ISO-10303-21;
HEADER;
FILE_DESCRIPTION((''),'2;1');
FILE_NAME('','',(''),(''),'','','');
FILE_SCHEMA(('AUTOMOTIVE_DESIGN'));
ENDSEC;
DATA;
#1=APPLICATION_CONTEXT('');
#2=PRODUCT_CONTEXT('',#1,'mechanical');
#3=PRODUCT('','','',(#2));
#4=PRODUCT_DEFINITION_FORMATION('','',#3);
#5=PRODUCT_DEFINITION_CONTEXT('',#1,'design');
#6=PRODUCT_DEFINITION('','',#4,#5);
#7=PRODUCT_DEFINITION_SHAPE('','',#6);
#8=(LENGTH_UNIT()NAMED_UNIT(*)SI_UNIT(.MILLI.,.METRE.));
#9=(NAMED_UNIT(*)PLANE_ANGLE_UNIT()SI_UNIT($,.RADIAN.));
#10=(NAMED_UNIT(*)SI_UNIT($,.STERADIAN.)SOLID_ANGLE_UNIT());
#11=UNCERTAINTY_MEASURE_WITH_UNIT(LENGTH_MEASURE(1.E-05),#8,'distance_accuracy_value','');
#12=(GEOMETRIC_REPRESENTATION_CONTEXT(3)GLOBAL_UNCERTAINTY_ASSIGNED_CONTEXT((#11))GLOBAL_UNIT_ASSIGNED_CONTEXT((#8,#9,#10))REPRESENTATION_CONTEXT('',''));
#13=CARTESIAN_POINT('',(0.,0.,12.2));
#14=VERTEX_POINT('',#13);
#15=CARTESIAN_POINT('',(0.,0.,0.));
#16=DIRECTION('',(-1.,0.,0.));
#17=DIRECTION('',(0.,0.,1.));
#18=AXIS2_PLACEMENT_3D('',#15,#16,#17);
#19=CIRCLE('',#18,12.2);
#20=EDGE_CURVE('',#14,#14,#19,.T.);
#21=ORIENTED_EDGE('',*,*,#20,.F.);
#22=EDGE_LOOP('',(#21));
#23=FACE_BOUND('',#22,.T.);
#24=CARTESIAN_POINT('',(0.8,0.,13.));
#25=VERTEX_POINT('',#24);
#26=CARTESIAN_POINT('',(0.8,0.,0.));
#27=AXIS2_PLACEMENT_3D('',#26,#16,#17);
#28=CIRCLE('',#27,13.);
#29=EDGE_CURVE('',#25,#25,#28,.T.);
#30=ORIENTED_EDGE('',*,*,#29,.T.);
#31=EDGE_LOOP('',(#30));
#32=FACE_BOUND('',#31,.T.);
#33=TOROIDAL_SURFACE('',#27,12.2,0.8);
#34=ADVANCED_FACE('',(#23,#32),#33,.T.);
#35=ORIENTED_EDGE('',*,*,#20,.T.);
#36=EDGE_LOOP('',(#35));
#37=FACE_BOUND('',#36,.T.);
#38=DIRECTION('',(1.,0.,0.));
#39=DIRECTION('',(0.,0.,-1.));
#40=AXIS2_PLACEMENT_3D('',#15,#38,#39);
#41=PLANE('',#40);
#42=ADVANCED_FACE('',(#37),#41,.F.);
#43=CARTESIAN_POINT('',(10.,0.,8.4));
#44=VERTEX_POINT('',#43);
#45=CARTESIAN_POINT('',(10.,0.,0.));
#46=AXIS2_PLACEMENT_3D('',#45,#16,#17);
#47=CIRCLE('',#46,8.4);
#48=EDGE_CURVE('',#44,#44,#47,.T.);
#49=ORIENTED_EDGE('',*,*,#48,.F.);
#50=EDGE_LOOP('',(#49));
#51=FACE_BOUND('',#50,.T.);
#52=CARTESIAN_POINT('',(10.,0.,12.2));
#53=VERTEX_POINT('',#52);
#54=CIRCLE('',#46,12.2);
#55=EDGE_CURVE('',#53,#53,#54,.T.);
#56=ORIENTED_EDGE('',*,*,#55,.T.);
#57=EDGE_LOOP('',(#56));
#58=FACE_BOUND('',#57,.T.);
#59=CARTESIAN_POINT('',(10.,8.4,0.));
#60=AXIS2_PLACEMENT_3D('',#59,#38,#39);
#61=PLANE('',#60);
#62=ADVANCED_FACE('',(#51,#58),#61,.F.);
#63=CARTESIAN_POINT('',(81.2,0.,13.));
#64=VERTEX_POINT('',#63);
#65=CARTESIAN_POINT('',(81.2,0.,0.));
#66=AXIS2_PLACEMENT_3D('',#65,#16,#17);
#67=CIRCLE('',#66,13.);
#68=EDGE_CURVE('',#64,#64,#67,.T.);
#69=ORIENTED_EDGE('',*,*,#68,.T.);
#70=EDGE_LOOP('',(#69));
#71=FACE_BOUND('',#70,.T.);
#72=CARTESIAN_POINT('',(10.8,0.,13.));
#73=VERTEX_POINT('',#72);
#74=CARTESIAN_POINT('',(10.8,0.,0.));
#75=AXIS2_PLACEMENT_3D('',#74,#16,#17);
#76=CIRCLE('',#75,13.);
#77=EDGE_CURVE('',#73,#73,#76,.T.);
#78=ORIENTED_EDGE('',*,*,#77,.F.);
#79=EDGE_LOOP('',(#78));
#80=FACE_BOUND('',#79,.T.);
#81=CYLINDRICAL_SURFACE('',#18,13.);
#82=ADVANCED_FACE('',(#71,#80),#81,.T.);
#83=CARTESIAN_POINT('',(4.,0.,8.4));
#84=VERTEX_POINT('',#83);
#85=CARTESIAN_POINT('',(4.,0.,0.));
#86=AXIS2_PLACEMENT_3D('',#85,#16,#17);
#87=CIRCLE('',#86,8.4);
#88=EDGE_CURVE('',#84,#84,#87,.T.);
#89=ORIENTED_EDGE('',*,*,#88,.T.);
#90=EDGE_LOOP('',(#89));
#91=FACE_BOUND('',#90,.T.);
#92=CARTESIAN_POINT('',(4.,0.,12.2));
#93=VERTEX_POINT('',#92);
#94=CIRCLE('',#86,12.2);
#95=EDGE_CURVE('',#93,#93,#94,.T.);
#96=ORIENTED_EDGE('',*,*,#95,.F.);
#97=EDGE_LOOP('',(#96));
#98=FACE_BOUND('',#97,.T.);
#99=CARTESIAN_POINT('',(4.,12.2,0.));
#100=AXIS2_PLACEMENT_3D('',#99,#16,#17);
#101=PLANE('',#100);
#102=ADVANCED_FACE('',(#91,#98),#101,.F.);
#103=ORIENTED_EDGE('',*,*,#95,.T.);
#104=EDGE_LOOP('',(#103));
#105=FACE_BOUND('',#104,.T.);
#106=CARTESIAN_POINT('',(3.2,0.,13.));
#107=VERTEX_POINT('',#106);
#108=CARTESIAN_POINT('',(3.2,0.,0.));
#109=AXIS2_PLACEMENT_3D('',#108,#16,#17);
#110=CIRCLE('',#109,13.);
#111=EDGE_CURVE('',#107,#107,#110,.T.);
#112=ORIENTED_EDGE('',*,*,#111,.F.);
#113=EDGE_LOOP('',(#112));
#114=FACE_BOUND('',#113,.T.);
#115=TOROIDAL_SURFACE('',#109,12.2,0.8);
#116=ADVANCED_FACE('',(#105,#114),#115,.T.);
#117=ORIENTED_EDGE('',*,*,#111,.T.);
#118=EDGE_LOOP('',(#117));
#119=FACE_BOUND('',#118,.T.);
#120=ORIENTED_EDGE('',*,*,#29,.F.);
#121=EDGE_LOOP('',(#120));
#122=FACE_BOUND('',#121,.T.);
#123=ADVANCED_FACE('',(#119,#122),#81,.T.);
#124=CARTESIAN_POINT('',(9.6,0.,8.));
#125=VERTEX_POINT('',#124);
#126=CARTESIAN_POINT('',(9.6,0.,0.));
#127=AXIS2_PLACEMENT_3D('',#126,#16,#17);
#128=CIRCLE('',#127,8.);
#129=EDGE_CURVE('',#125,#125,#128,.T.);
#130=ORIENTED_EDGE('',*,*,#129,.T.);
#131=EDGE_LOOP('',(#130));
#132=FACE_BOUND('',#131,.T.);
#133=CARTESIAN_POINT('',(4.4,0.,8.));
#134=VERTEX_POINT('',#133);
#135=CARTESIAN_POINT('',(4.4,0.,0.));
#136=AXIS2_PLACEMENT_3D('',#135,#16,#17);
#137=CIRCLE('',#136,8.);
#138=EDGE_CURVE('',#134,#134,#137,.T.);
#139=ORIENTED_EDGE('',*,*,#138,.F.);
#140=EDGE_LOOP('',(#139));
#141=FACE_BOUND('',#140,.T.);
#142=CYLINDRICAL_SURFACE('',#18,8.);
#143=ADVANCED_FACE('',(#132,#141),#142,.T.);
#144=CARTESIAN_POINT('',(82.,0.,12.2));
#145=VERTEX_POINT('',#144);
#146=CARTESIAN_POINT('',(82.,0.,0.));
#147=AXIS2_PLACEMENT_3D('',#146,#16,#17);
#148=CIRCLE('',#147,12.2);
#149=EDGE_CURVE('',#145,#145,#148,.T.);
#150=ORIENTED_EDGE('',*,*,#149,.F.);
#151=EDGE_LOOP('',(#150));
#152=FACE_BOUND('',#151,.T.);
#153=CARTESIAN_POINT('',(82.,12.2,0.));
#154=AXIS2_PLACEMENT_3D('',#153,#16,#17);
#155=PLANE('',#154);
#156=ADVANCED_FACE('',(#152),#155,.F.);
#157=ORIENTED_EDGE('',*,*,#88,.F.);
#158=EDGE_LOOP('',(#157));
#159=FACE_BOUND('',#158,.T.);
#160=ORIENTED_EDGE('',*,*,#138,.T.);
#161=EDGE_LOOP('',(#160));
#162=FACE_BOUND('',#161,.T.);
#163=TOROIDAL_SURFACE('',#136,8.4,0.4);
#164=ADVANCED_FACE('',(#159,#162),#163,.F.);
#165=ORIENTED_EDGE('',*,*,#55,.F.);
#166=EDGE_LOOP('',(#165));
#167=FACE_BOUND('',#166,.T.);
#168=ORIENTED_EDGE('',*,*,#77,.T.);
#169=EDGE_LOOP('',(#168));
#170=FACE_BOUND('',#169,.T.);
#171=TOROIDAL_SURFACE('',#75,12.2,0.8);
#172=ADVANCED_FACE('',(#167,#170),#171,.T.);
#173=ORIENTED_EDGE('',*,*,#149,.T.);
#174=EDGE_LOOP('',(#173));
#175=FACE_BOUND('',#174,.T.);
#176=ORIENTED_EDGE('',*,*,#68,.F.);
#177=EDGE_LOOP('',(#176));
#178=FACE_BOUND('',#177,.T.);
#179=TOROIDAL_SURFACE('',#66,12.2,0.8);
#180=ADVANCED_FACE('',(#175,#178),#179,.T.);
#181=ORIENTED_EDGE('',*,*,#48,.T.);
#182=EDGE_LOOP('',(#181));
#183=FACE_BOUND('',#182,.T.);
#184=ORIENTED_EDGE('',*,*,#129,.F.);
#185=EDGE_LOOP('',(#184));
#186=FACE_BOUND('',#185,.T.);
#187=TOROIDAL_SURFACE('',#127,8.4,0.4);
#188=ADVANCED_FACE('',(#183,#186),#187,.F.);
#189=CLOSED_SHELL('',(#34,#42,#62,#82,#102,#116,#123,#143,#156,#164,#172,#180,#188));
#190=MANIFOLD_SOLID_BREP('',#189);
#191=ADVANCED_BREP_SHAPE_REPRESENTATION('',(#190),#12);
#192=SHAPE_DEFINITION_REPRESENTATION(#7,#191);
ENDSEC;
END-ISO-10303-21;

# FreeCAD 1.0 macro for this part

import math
import FreeCAD as App
import Part
import Sketcher
from FreeCAD import Vector

doc = App.newDocument("Part")
body = doc.addObject("PartDesign::Body", "Body")

sketch1 = doc.addObject("Sketcher::SketchObject", "Sketch")
body.addObject(sketch1)
sketch1.AttachmentSupport = (doc.XY_Plane, [""])
sketch1.MapMode = "FlatFace"
sketch1.addGeometry(Part.LineSegment(Vector(0, 12.2, 0), Vector(0, 0, 0)), False)
sketch1.addGeometry(Part.LineSegment(Vector(0, 0, 0), Vector(82, 0, 0)), False)
sketch1.addGeometry(Part.LineSegment(Vector(82, 0, 0), Vector(82, 12.2, 0)), False)
sketch1.addGeometry(Part.ArcOfCircle(Part.Circle(Vector(81.2, 12.2, 0), Vector(0, 0, 1), 0.8), math.radians(0), math.radians(90)), False)
sketch1.addGeometry(Part.LineSegment(Vector(81.2, 13, 0), Vector(10.8, 13, 0)), False)
sketch1.addGeometry(Part.ArcOfCircle(Part.Circle(Vector(10.8, 12.2, 0), Vector(0, 0, 1), 0.8), math.radians(90), math.radians(180)), False)
sketch1.addGeometry(Part.LineSegment(Vector(10, 12.2, 0), Vector(10, 8.4, 0)), False)
sketch1.addGeometry(Part.ArcOfCircle(Part.Circle(Vector(9.6, 8.4, 0), Vector(0, 0, 1), 0.4), math.radians(-90), math.radians(0)), False)
sketch1.addGeometry(Part.LineSegment(Vector(9.6, 8, 0), Vector(4.4, 8, 0)), False)
sketch1.addGeometry(Part.ArcOfCircle(Part.Circle(Vector(4.4, 8.4, 0), Vector(0, 0, 1), 0.4), math.radians(-180), math.radians(-90)), False)
sketch1.addGeometry(Part.LineSegment(Vector(4, 8.4, 0), Vector(4, 12.2, 0)), False)
sketch1.addGeometry(Part.ArcOfCircle(Part.Circle(Vector(3.2, 12.2, 0), Vector(0, 0, 1), 0.8), math.radians(0), math.radians(90)), False)
sketch1.addGeometry(Part.LineSegment(Vector(3.2, 13, 0), Vector(0.8, 13, 0)), False)
sketch1.addGeometry(Part.ArcOfCircle(Part.Circle(Vector(0.8, 12.2, 0), Vector(0, 0, 1), 0.8), math.radians(90), math.radians(180)), False)
sketch1.addConstraint(Sketcher.Constraint("Coincident", 0, 2, 1, 1))
sketch1.addConstraint(Sketcher.Constraint("Coincident", 1, 2, 2, 1))
sketch1.addConstraint(Sketcher.Constraint("Tangent", 2, 2, 3, 1))
sketch1.addConstraint(Sketcher.Constraint("Tangent", 3, 2, 4, 1))
sketch1.addConstraint(Sketcher.Constraint("Tangent", 4, 2, 5, 1))
sketch1.addConstraint(Sketcher.Constraint("Tangent", 5, 2, 6, 1))
sketch1.addConstraint(Sketcher.Constraint("Tangent", 6, 2, 7, 2))
sketch1.addConstraint(Sketcher.Constraint("Tangent", 7, 1, 8, 1))
sketch1.addConstraint(Sketcher.Constraint("Tangent", 8, 2, 9, 2))
sketch1.addConstraint(Sketcher.Constraint("Tangent", 9, 1, 10, 1))
sketch1.addConstraint(Sketcher.Constraint("Tangent", 10, 2, 11, 1))
sketch1.addConstraint(Sketcher.Constraint("Tangent", 11, 2, 12, 1))
sketch1.addConstraint(Sketcher.Constraint("Tangent", 12, 2, 13, 1))
sketch1.addConstraint(Sketcher.Constraint("Tangent", 13, 2, 0, 1))
sketch1.addConstraint(Sketcher.Constraint("Vertical", 0))
sketch1.addConstraint(Sketcher.Constraint("Horizontal", 1))
sketch1.addConstraint(Sketcher.Constraint("Vertical", 2))
sketch1.addConstraint(Sketcher.Constraint("Horizontal", 4))
sketch1.addConstraint(Sketcher.Constraint("Vertical", 6))
sketch1.addConstraint(Sketcher.Constraint("Horizontal", 8))
sketch1.addConstraint(Sketcher.Constraint("Vertical", 10))
sketch1.addConstraint(Sketcher.Constraint("Horizontal", 12))
sketch1.addConstraint(Sketcher.Constraint("Coincident", 0, 2, -1, 1))
sketch1.addConstraint(Sketcher.Constraint("Equal", 3, 5))
sketch1.addConstraint(Sketcher.Constraint("Equal", 7, 9))
sketch1.addConstraint(Sketcher.Constraint("Equal", 5, 11))
sketch1.addConstraint(Sketcher.Constraint("Equal", 11, 13))
sketch1.addConstraint(Sketcher.Constraint("Horizontal", 5, 3, 11, 3))
sketch1.addConstraint(Sketcher.Constraint("Radius", 3, 0.8))
sketch1.addConstraint(Sketcher.Constraint("Radius", 7, 0.4))
sketch1.addConstraint(Sketcher.Constraint("DistanceX", 1, 1, 1, 2, 82.0))
sketch1.addConstraint(Sketcher.Constraint("DistanceX", 4, 2, 4, 1, 70.4))
sketch1.addConstraint(Sketcher.Constraint("DistanceX", 8, 2, 8, 1, 5.2))
sketch1.addConstraint(Sketcher.Constraint("DistanceY", 0, 2, 0, 1, 12.2))
sketch1.addConstraint(Sketcher.Constraint("DistanceY", 6, 2, 6, 1, 3.8))
revolution = doc.addObject("PartDesign::Revolution", "Revolution")
body.addObject(revolution)
revolution.Profile = sketch1
revolution.ReferenceAxis = (sketch1, ["H_Axis"])
revolution.Angle = 360

doc.recompute()
